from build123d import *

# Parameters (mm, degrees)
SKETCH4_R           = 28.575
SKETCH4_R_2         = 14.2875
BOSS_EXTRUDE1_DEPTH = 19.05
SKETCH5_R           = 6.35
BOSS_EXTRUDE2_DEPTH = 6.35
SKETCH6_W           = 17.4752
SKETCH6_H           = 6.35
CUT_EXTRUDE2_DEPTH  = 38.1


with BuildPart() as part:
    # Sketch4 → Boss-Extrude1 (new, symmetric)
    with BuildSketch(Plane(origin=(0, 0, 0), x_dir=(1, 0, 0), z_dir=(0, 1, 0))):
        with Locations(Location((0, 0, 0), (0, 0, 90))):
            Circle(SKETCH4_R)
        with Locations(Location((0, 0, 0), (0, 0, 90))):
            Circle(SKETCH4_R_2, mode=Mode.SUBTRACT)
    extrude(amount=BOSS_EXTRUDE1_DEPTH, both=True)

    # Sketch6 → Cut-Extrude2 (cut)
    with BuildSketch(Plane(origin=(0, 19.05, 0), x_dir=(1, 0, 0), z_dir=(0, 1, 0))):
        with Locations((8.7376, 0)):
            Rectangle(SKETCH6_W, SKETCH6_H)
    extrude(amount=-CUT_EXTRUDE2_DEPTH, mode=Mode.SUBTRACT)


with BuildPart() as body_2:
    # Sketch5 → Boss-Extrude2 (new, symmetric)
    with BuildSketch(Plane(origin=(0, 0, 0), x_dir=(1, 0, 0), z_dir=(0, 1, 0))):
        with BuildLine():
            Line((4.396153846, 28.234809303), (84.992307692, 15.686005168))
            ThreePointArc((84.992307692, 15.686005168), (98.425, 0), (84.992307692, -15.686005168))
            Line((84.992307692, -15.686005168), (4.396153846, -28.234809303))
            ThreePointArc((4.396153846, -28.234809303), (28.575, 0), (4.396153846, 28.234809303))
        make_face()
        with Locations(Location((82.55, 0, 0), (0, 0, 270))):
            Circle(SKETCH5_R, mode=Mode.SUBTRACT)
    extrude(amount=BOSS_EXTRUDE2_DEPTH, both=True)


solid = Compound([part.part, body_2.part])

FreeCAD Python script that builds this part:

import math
import FreeCAD as App
import Part
import Sketcher

V = App.Vector
Q = App.Units.Quantity


def add_polygon(sketch, points):
    """Adds a closed chain of lines whose ends are joined by coincident constraints."""
    first, n = sketch.GeometryCount, len(points)
    for a, b in zip(points, points[1:] + points[:1]):
        sketch.addGeometry(Part.LineSegment(App.Vector(*a, 0), App.Vector(*b, 0)), False)
    for i in range(n):
        sketch.addConstraint(Sketcher.Constraint("Coincident", first + i, 2, first + (i + 1) % n, 1))

doc = App.newDocument("Part")
body = doc.addObject("PartDesign::Body", "Body")

# Sketch on XZ plane
sketch1 = body.newObject("Sketcher::SketchObject", "Sketch")
sketch1.AttachmentSupport = (doc.getObject("XZ_Plane"), [""])
sketch1.MapMode = "FlatFace"
sketch1.addGeometry(Part.Circle(V(0, 0, 0), V(0, 0, 1), 28.575), False)
sketch1.addGeometry(Part.Circle(V(0, 0, 0), V(0, 0, 1), 14.2875), False)
sketch1.addConstraint(Sketcher.Constraint("Coincident", 0, 3, -1, 1))
sketch1.addConstraint(Sketcher.Constraint("Coincident", 1, 3, -1, 1))
sketch1.addConstraint(Sketcher.Constraint("Diameter", 0, Q("2.25 in")))
sketch1.addConstraint(Sketcher.Constraint("Diameter", 1, Q("1.125 in")))
pad1 = body.newObject("PartDesign::Pad", "Pad")
pad1.Profile = sketch1
pad1.Length = Q("1.5 in")
pad1.Midplane = True

# Sketch on XZ plane
sketch2 = body.newObject("Sketcher::SketchObject", "Sketch001")
sketch2.AttachmentSupport = (doc.getObject("XZ_Plane"), [""])
sketch2.MapMode = "FlatFace"
sketch2.AttachmentOffset = App.Placement(V(0, 0, -0.75 * 25.4), App.Rotation())
add_polygon(sketch2, [(0, -3.175), (0, 3.175), (17.4752, 3.175), (17.4752, -3.175)])  # lines 0-3
sketch2.addConstraint(Sketcher.Constraint("Vertical", 0))
sketch2.addConstraint(Sketcher.Constraint("Horizontal", 1))
sketch2.addConstraint(Sketcher.Constraint("Vertical", 2))
sketch2.addConstraint(Sketcher.Constraint("Horizontal", 3))
sketch2.addConstraint(Sketcher.Constraint("Symmetric", 0, 2, 3, 2, -1, 1))
sketch2.addConstraint(Sketcher.Constraint("DistanceY", 0, 1, 0, 2, Q("0.25 in")))
sketch2.addConstraint(Sketcher.Constraint("DistanceX", 1, 1, 1, 2, Q("0.688 in")))
pocket1 = body.newObject("PartDesign::Pocket", "Pocket")
pocket1.Profile = sketch2
pocket1.Length = Q("1.5 in")
pocket1.Reversed = True
body2 = doc.addObject("PartDesign::Body", "Body001")

# Sketch on XZ plane
sketch3 = body2.newObject("Sketcher::SketchObject", "Sketch002")
sketch3.AttachmentSupport = (doc.getObject("XZ_Plane001"), [""])
sketch3.MapMode = "FlatFace"
sketch3.addGeometry(Part.LineSegment(V(84.992308, -15.686005, 0), V(4.396154, -28.234809, 0)), False)
sketch3.addGeometry(Part.ArcOfCircle(Part.Circle(V(0, 0, 0), V(0, 0, 1), 28.575), math.radians(-81.150117), math.radians(81.150117)), False)
sketch3.addGeometry(Part.LineSegment(V(4.396154, 28.234809, 0), V(84.992308, 15.686005, 0)), False)
sketch3.addGeometry(Part.ArcOfCircle(Part.Circle(V(82.55, 0, 0), V(0, 0, 1), 15.875), math.radians(-81.150117), math.radians(81.150117)), False)
sketch3.addGeometry(Part.Circle(V(82.55, 0, 0), V(0, 0, 1), 6.35), False)
sketch3.addConstraint(Sketcher.Constraint("Tangent", 0, 2, 1, 1))
sketch3.addConstraint(Sketcher.Constraint("Tangent", 1, 2, 2, 1))
sketch3.addConstraint(Sketcher.Constraint("Tangent", 2, 2, 3, 2))
sketch3.addConstraint(Sketcher.Constraint("Tangent", 3, 1, 0, 1))
sketch3.addConstraint(Sketcher.Constraint("Coincident", 1, 3, -1, 1))
sketch3.addConstraint(Sketcher.Constraint("Coincident", 4, 3, 3, 3))
sketch3.addConstraint(Sketcher.Constraint("PointOnObject", 3, 3, -1))
sketch3.addConstraint(Sketcher.Constraint("Diameter", 4, Q("0.5 in")))
sketch3.addConstraint(Sketcher.Constraint("Radius", 1, Q("1.125 in")))
sketch3.addConstraint(Sketcher.Constraint("Radius", 3, Q("0.625 in")))
sketch3.addConstraint(Sketcher.Constraint("DistanceX", -1, 1, 3, 3, Q("3.25 in")))
pad2 = body2.newObject("PartDesign::Pad", "Pad001")
pad2.Profile = sketch3
pad2.Length = Q("0.5 in")
pad2.Midplane = True

doc.recompute()
